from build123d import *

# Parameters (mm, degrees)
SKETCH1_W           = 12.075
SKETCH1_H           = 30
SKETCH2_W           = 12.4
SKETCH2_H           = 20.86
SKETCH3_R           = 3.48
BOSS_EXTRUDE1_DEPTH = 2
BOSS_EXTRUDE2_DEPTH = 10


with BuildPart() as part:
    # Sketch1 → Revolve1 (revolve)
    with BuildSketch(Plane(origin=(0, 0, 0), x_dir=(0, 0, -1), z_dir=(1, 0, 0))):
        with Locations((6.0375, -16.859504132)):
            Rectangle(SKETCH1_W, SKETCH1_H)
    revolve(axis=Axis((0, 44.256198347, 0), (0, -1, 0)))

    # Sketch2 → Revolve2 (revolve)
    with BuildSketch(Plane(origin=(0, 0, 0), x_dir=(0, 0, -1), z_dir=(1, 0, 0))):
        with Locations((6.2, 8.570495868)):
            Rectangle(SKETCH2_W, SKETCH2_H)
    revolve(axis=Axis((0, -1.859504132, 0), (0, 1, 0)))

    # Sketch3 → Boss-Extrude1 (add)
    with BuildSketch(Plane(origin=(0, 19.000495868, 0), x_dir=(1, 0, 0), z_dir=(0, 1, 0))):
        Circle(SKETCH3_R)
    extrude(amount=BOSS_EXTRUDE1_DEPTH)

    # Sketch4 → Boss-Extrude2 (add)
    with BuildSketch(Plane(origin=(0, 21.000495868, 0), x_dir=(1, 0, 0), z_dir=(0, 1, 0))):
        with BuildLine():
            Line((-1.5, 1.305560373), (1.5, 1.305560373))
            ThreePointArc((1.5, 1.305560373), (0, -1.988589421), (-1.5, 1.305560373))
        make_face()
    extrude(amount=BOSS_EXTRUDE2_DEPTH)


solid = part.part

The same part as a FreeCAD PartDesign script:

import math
import FreeCAD as App
import Part
import Sketcher
Q = App.Units.Quantity


def add_polygon(sketch, points):
    """Adds a closed chain of lines whose ends are joined by coincident constraints."""
    first, n = sketch.GeometryCount, len(points)
    for a, b in zip(points, points[1:] + points[:1]):
        sketch.addGeometry(Part.LineSegment(App.Vector(*a, 0), App.Vector(*b, 0)), False)
    for i in range(n):
        sketch.addConstraint(Sketcher.Constraint("Coincident", first + i, 2, first + (i + 1) % n, 1))

doc = App.newDocument("Part")
body = doc.addObject("PartDesign::Body", "Body")

# Sketch on YZ plane
sketch1 = doc.addObject("Sketcher::SketchObject", "Sketch")
body.addObject(sketch1)
sketch1.AttachmentSupport = (doc.YZ_Plane, [""])
sketch1.MapMode = "FlatFace"
add_polygon(sketch1, [(-2, 0), (-32, 0), (-32, -12), (-2, -12)])  # lines 0-3
sketch1.addConstraint([
    Sketcher.Constraint("Horizontal", 0),
    Sketcher.Constraint("Vertical", 1),
    Sketcher.Constraint("Horizontal", 2),
    Sketcher.Constraint("Vertical", 3),
    Sketcher.Constraint("PointOnObject", 0, 2, -1),
    Sketcher.Constraint("DistanceX", 0, 2, 0, 1, Q("30 mm")),
    Sketcher.Constraint("DistanceY", 1, 2, 1, 1, Q("12.075 mm")),
    Sketcher.Constraint("DistanceX", 0, 2, -1, 1, Q("31.859504 mm")),
])
revolution = doc.addObject("PartDesign::Revolution", "Revolution")
body.addObject(revolution)
revolution.Profile = sketch1
revolution.ReferenceAxis = (sketch1, ["H_Axis"])
revolution.Angle = 360

# Sketch on YZ plane
sketch2 = doc.addObject("Sketcher::SketchObject", "Sketch001")
body.addObject(sketch2)
sketch2.AttachmentSupport = (doc.YZ_Plane, [""])
sketch2.MapMode = "FlatFace"
add_polygon(sketch2, [(19, 0), (-2, 0), (-2, -12), (19, -12)])  # lines 0-3
sketch2.addConstraint([
    Sketcher.Constraint("Horizontal", 0),
    Sketcher.Constraint("Vertical", 1),
    Sketcher.Constraint("Horizontal", 2),
    Sketcher.Constraint("Vertical", 3),
    Sketcher.Constraint("PointOnObject", 0, 2, -1),
    Sketcher.Constraint("DistanceY", 1, 2, 1, 1, Q("12.4 mm")),
    Sketcher.Constraint("DistanceX", 0, 2, 0, 1, Q("20.86 mm")),
    Sketcher.Constraint("DistanceX", 0, 2, -1, 1, Q("1.859504 mm")),
])
revolution2 = doc.addObject("PartDesign::Revolution", "Revolution001")
body.addObject(revolution2)
revolution2.Profile = sketch2
revolution2.ReferenceAxis = (sketch2, ["H_Axis"])
revolution2.Angle = 360

# Sketch on XZ plane
sketch3 = doc.addObject("Sketcher::SketchObject", "Sketch002")
body.addObject(sketch3)
sketch3.AttachmentSupport = (doc.XZ_Plane, [""])
sketch3.MapMode = "FlatFace"
sketch3.AttachmentOffset = App.Placement(App.Vector(0, 0, -19.000496), App.Rotation())
sketch3.addGeometry(Part.Circle(App.Vector(0, 0, 0), App.Vector(0, 0, 1), 3.5), False)
sketch3.addConstraint([
    Sketcher.Constraint("Coincident", 0, 3, -1, 1),
    Sketcher.Constraint("Diameter", 0, Q("6.96 mm")),
])
pad1 = doc.addObject("PartDesign::Pad", "Pad")
body.addObject(pad1)
pad1.Profile = sketch3
pad1.Length = 2
pad1.Reversed = True

# Sketch on XZ plane
sketch4 = doc.addObject("Sketcher::SketchObject", "Sketch003")
body.addObject(sketch4)
sketch4.AttachmentSupport = (doc.XZ_Plane, [""])
sketch4.MapMode = "FlatFace"
sketch4.AttachmentOffset = App.Placement(App.Vector(0, 0, -21.000496), App.Rotation())
sketch4.addGeometry([
    Part.LineSegment(App.Vector(1.5, -1.3, 0), App.Vector(-1.5, -1.3, 0)),
    Part.ArcOfCircle(Part.Circle(App.Vector(0, 0, 0), App.Vector(0, 0, 1), 2), math.radians(-41), math.radians(221)),
], False)
sketch4.addConstraint([
    Sketcher.Constraint("Coincident", 0, 1, 1, 1),
    Sketcher.Constraint("Coincident", 1, 2, 0, 2),
    Sketcher.Constraint("Horizontal", 0),
    Sketcher.Constraint("Coincident", 1, 3, -1, 1),
    Sketcher.Constraint("DistanceX", 0, 2, 0, 1, Q("3 mm")),
    Sketcher.Constraint("Radius", 1, Q("1.988589 mm")),
])
pad2 = doc.addObject("PartDesign::Pad", "Pad001")
body.addObject(pad2)
pad2.Profile = sketch4
pad2.Length = 10
pad2.Reversed = True

doc.recompute()
